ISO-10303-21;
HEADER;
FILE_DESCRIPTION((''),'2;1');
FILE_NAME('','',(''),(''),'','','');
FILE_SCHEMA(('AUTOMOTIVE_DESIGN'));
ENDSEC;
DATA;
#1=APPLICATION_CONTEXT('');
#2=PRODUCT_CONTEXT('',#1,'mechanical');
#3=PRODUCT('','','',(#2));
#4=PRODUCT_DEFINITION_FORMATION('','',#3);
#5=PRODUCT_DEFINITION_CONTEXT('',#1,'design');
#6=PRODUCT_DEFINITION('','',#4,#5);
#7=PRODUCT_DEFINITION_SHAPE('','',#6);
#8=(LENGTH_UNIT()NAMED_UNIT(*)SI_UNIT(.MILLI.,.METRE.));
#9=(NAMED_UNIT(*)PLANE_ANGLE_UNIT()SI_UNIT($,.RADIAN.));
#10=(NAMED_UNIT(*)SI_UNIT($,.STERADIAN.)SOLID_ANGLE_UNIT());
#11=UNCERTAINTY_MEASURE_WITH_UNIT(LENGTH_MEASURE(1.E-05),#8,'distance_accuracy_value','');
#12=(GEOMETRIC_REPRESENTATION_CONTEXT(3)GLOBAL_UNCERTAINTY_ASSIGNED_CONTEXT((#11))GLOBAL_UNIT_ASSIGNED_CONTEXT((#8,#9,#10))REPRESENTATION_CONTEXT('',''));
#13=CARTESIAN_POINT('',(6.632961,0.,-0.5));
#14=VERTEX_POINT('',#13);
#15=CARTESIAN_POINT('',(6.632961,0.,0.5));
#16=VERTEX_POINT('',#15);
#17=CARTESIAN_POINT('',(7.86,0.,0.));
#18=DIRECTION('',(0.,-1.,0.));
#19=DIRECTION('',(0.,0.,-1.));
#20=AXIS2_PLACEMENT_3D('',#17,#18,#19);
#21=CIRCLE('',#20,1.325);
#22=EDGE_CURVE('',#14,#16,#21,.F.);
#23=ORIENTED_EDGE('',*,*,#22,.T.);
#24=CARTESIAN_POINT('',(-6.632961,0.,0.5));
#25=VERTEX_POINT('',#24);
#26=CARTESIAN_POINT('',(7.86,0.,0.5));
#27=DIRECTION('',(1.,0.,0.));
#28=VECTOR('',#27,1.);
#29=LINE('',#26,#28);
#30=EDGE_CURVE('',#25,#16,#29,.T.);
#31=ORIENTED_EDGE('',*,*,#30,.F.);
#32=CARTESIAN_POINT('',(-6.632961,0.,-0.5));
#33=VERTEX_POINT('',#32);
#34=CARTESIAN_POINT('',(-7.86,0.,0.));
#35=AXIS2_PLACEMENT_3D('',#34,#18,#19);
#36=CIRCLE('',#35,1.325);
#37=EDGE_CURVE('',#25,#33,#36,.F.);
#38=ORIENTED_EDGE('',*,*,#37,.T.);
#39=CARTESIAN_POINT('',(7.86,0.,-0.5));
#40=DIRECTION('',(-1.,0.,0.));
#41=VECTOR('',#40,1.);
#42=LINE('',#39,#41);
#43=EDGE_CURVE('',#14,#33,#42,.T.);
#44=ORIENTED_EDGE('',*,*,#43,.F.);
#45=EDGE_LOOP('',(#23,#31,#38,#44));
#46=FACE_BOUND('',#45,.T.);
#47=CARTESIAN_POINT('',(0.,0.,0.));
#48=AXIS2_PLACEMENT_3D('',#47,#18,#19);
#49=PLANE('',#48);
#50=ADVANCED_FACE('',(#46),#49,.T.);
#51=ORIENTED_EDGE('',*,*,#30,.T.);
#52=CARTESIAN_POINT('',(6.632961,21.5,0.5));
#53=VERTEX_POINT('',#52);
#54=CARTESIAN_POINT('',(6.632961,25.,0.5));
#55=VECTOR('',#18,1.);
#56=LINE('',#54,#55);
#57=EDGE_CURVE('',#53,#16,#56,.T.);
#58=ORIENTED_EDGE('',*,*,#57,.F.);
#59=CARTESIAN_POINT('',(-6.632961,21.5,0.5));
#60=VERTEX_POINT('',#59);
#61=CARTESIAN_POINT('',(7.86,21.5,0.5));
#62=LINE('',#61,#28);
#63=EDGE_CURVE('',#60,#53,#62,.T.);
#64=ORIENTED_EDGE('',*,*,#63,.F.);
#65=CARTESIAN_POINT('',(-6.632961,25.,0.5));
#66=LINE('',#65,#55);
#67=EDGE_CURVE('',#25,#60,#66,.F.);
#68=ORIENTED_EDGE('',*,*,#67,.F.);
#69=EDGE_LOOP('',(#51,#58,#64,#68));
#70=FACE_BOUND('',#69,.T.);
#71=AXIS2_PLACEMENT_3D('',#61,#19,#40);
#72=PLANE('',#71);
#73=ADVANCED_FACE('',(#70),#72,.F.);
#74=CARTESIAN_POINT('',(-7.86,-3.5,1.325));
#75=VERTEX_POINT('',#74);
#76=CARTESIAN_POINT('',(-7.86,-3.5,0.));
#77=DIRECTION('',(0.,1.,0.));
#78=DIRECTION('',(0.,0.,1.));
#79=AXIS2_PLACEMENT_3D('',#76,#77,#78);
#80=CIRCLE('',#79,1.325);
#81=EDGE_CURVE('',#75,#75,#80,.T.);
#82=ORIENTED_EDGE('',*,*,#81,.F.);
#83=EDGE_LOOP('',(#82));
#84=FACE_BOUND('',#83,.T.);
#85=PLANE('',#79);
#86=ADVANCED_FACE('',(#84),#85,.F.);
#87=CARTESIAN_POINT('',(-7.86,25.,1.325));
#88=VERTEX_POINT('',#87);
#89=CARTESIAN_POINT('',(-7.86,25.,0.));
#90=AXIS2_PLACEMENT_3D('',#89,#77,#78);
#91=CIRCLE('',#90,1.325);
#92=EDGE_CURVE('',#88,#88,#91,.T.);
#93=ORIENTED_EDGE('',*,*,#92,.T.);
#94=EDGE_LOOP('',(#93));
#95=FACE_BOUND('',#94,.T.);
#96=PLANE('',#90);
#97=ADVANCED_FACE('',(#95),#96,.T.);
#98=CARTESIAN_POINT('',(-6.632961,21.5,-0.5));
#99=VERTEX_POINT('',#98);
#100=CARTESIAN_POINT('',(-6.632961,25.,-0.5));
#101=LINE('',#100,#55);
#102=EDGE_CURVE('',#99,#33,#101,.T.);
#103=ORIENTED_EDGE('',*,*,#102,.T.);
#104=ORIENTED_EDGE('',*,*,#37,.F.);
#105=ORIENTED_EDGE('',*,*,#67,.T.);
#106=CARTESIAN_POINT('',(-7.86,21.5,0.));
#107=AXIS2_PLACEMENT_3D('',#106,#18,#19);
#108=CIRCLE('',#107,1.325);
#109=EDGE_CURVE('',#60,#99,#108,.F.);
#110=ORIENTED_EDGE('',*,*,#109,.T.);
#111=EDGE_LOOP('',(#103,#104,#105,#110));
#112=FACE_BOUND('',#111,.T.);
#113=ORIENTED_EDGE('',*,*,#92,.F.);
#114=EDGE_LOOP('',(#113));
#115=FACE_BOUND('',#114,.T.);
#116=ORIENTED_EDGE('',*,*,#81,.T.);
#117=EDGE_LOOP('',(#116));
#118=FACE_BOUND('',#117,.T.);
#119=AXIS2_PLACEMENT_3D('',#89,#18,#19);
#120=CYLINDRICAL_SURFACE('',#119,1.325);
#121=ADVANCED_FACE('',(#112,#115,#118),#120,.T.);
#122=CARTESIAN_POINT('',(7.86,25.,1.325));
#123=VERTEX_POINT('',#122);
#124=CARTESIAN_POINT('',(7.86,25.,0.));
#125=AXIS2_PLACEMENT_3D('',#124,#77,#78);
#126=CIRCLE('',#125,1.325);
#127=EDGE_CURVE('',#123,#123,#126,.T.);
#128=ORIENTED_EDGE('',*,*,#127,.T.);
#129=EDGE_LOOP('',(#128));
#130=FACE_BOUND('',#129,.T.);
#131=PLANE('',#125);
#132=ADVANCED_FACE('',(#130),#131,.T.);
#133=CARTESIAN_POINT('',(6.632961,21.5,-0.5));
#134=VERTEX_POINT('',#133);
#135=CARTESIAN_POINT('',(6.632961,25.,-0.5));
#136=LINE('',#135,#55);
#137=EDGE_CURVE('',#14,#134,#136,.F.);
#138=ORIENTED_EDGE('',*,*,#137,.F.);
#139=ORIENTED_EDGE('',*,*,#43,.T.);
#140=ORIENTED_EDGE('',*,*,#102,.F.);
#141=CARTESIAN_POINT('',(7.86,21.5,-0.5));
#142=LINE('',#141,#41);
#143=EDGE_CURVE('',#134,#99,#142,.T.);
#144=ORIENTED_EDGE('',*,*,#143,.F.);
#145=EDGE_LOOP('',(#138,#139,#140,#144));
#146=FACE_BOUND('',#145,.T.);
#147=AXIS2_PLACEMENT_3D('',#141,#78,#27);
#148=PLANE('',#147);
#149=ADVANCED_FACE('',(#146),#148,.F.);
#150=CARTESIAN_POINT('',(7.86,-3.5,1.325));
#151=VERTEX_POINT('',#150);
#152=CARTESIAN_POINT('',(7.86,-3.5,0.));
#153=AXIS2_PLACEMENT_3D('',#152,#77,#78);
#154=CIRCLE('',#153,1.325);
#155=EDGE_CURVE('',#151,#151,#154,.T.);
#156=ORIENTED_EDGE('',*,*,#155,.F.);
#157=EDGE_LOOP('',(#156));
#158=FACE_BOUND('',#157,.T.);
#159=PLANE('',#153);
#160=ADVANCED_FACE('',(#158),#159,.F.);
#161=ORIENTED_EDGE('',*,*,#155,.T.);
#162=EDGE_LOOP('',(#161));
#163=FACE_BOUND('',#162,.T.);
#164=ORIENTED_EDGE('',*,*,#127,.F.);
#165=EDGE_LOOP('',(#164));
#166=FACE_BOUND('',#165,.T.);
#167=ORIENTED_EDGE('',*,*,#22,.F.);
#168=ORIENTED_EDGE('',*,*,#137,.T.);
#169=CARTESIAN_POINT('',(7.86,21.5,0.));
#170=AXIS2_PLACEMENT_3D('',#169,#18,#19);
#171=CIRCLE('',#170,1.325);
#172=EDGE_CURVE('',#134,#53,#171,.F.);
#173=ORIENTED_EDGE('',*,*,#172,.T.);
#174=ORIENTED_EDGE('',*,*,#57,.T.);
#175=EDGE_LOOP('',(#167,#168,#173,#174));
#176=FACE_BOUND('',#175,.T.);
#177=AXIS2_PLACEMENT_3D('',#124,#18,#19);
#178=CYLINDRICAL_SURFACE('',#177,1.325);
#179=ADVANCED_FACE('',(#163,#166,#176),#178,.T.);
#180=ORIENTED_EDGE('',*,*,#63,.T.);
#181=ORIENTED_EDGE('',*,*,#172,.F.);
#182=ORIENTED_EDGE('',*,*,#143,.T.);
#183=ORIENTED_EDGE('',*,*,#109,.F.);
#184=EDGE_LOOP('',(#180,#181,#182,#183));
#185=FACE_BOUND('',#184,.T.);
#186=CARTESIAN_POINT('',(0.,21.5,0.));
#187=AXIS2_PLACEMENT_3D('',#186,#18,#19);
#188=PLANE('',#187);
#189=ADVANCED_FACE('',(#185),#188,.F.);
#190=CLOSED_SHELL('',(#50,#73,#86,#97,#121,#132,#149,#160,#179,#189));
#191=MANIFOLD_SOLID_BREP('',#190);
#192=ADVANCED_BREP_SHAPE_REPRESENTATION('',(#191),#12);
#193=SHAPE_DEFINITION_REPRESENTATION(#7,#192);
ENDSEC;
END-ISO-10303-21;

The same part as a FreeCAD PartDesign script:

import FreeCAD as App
import Part
import Sketcher

doc = App.newDocument("Part")
params = doc.addObject("Spreadsheet::Sheet", "Params")
for row, (alias, value) in enumerate([
    ("sketch1_height", "1 mm"),
    ("sketch1_width", "15.72 mm"),
    ("pad1_length", "21.5 mm"),
    ("sketch2_diameter", "2.65 mm"),
    ("pad2_length", "28.5 mm"),
], start=1):
    params.set(f"A{row}", alias)
    params.set(f"B{row}", "=" + value)
    params.setAlias(f"B{row}", alias)

body = doc.addObject("PartDesign::Body", "Body")

# Sketch on XZ plane
sketch1 = body.newObject("Sketcher::SketchObject", "Sketch")
sketch1.AttachmentSupport = (doc.getObject("XZ_Plane"), [""])
sketch1.MapMode = "FlatFace"
sketch1.addGeometry([
    Part.LineSegment(App.Vector(-7.9, -0.5, 0), App.Vector(-7.9, 0.5, 0)),
    Part.LineSegment(App.Vector(-7.9, 0.5, 0), App.Vector(7.9, 0.5, 0)),
    Part.LineSegment(App.Vector(7.9, 0.5, 0), App.Vector(7.9, -0.5, 0)),
    Part.LineSegment(App.Vector(7.9, -0.5, 0), App.Vector(-7.9, -0.5, 0)),
], False)
sketch1.addConstraint([
    Sketcher.Constraint("Coincident", 0, 2, 1, 1),
    Sketcher.Constraint("Coincident", 1, 2, 2, 1),
    Sketcher.Constraint("Coincident", 2, 2, 3, 1),
    Sketcher.Constraint("Coincident", 3, 2, 0, 1),
    Sketcher.Constraint("Vertical", 0),
    Sketcher.Constraint("Horizontal", 1),
    Sketcher.Constraint("Vertical", 2),
    Sketcher.Constraint("Horizontal", 3),
    Sketcher.Constraint("Symmetric", 0, 2, 2, 2, -1, 1),
    Sketcher.Constraint("DistanceY", 0, 1, 0, 2, 1.0),
    Sketcher.Constraint("DistanceX", 1, 1, 1, 2, 15.72),
])
sketch1.setExpression("Constraints[9]", "Params.sketch1_height")
sketch1.setExpression("Constraints[10]", "Params.sketch1_width")
pad1 = body.newObject("PartDesign::Pad", "Pad")
pad1.Profile = sketch1
pad1.setExpression("Length", "Params.pad1_length")
pad1.Reversed = True

# Sketch on XZ plane
sketch2 = body.newObject("Sketcher::SketchObject", "Sketch001")
sketch2.AttachmentSupport = (doc.getObject("XZ_Plane"), [""])
sketch2.MapMode = "FlatFace"
sketch2.AttachmentOffset = App.Placement(App.Vector(0, 0, -10.75), App.Rotation())
sketch2.addGeometry([
    Part.Circle(App.Vector(-7.9, 0, 0), App.Vector(0, 0, 1), 1.3),
    Part.Circle(App.Vector(7.9, 0, 0), App.Vector(0, 0, 1), 1.3),
], False)
sketch2.addConstraint([
    Sketcher.Constraint("Equal", 0, 1),
    Sketcher.Constraint("Symmetric", 0, 3, 1, 3, -1, 1),
    Sketcher.Constraint("PointOnObject", 0, 3, -1),
    Sketcher.Constraint("Diameter", 0, 2.65),
    Sketcher.Constraint("DistanceX", 0, 3, -1, 1, 7.86),
])
sketch2.setExpression("Constraints[3]", "Params.sketch2_diameter")
pad2 = body.newObject("PartDesign::Pad", "Pad001")
pad2.Profile = sketch2
pad2.setExpression("Length", "Params.pad2_length")
pad2.Midplane = True

doc.recompute()
